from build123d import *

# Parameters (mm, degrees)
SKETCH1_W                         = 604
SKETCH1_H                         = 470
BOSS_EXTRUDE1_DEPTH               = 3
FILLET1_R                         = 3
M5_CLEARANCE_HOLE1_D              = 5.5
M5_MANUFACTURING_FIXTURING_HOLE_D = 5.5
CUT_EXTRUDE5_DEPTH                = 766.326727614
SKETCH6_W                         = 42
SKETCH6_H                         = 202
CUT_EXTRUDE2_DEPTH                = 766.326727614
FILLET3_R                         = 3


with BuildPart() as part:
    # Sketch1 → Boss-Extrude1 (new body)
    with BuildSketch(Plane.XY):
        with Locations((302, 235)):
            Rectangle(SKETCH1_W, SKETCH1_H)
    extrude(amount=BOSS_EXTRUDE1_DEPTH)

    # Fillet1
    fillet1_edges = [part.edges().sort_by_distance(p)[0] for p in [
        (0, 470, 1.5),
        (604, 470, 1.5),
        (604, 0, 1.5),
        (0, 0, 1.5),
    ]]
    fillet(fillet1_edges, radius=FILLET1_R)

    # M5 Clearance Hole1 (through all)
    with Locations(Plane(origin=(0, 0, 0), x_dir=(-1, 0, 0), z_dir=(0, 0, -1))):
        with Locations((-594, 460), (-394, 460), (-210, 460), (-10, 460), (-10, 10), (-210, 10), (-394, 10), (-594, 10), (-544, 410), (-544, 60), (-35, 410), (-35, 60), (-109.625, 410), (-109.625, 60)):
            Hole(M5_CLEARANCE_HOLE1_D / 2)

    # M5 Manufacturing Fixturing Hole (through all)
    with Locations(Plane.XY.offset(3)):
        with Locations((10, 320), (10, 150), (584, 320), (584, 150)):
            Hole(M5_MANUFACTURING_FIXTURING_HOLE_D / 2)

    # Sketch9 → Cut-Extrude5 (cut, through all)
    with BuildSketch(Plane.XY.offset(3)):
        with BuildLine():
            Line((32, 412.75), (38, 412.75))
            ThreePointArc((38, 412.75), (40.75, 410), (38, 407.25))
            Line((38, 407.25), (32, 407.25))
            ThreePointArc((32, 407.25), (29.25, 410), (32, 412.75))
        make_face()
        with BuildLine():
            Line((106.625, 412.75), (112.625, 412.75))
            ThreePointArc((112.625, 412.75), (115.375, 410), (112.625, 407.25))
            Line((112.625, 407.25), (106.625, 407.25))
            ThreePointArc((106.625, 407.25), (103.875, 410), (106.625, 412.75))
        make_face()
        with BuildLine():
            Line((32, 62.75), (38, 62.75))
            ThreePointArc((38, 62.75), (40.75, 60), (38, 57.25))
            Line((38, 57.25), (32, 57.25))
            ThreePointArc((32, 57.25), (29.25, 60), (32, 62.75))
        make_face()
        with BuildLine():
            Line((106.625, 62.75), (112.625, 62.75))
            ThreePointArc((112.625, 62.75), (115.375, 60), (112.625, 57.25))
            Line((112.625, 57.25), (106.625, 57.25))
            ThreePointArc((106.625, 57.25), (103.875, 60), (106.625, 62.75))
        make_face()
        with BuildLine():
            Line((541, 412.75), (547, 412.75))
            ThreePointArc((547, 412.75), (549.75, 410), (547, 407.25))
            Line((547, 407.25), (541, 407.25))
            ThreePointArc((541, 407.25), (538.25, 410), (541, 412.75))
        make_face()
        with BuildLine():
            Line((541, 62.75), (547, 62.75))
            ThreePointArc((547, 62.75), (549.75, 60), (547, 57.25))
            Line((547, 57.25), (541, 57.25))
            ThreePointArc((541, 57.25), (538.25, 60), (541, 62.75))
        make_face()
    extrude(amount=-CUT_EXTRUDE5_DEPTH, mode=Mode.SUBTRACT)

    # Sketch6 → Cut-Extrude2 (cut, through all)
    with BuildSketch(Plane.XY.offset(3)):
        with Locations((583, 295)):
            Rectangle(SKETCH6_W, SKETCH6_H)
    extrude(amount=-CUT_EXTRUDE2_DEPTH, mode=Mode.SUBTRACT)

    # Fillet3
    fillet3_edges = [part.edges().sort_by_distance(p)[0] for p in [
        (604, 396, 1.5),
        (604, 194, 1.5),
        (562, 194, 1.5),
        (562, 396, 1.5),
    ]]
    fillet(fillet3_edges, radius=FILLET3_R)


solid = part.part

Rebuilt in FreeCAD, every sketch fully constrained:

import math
import FreeCAD as App
import Part
import Sketcher

V = App.Vector
Q = App.Units.Quantity


def edges_at(feature, points):
    """Names of the edges that pass closest to the given points."""
    edges = feature.Shape.Edges
    near = lambda p: min(range(len(edges)), key=lambda i: edges[i].distToShape(Part.Vertex(*p))[0])
    return sorted({f"Edge{near(p) + 1}" for p in points})


def add_polygon(sketch, points):
    """Adds a closed chain of lines whose ends are joined by coincident constraints."""
    first, n = sketch.GeometryCount, len(points)
    for a, b in zip(points, points[1:] + points[:1]):
        sketch.addGeometry(Part.LineSegment(App.Vector(*a, 0), App.Vector(*b, 0)), False)
    for i in range(n):
        sketch.addConstraint(Sketcher.Constraint("Coincident", first + i, 2, first + (i + 1) % n, 1))

doc = App.newDocument("Part")
body = doc.addObject("PartDesign::Body", "Body")

# Sketch on XY plane
sketch1 = body.newObject("Sketcher::SketchObject", "Sketch")
sketch1.AttachmentSupport = (doc.getObject("XY_Plane"), [""])
sketch1.MapMode = "FlatFace"
add_polygon(sketch1, [(0, 470), (0, 0), (604, 0), (604, 470)])  # lines 0-3
sketch1.addConstraint(Sketcher.Constraint("Vertical", 0))
sketch1.addConstraint(Sketcher.Constraint("Horizontal", 1))
sketch1.addConstraint(Sketcher.Constraint("Vertical", 2))
sketch1.addConstraint(Sketcher.Constraint("Horizontal", 3))
sketch1.addConstraint(Sketcher.Constraint("Coincident", 0, 2, -1, 1))
sketch1.addConstraint(Sketcher.Constraint("DistanceX", 1, 1, 1, 2, Q("604 mm")))
sketch1.addConstraint(Sketcher.Constraint("DistanceY", 0, 2, 0, 1, Q("470 mm")))
pad1 = body.newObject("PartDesign::Pad", "Pad")
pad1.Profile = sketch1
pad1.Length = 3
doc.recompute()

fillet = body.newObject("PartDesign::Fillet", "Fillet")
fillet.Base = (pad1, edges_at(pad1, [
    (0, 470, 1.5),
    (604, 470, 1.5),
    (604, 0, 1.5),
    (0, 0, 1.5),
]))
fillet.Radius = 3

# Sketch on XY plane
sketch2 = body.newObject("Sketcher::SketchObject", "Sketch001")
sketch2.AttachmentSupport = (doc.getObject("XY_Plane"), [""])
sketch2.MapMode = "FlatFace"
sketch2.addGeometry(Part.Circle(V(594, 460, 0), V(0, 0, 1), 2.8), False)
sketch2.addGeometry(Part.Circle(V(394, 460, 0), V(0, 0, 1), 2.8), False)
sketch2.addGeometry(Part.Circle(V(210, 460, 0), V(0, 0, 1), 2.8), False)
sketch2.addGeometry(Part.Circle(V(10, 460, 0), V(0, 0, 1), 2.8), False)
sketch2.addGeometry(Part.Circle(V(10, 10, 0), V(0, 0, 1), 2.8), False)
sketch2.addGeometry(Part.Circle(V(210, 10, 0), V(0, 0, 1), 2.8), False)
sketch2.addGeometry(Part.Circle(V(394, 10, 0), V(0, 0, 1), 2.8), False)
sketch2.addGeometry(Part.Circle(V(594, 10, 0), V(0, 0, 1), 2.8), False)
sketch2.addGeometry(Part.Circle(V(544, 410, 0), V(0, 0, 1), 2.8), False)
sketch2.addGeometry(Part.Circle(V(544, 60, 0), V(0, 0, 1), 2.8), False)
sketch2.addGeometry(Part.Circle(V(35, 410, 0), V(0, 0, 1), 2.8), False)
sketch2.addGeometry(Part.Circle(V(35, 60, 0), V(0, 0, 1), 2.8), False)
sketch2.addGeometry(Part.Circle(V(109.6, 410, 0), V(0, 0, 1), 2.8), False)
sketch2.addGeometry(Part.Circle(V(109.6, 60, 0), V(0, 0, 1), 2.8), False)
sketch2.addConstraint(Sketcher.Constraint("Equal", 0, 1))
sketch2.addConstraint(Sketcher.Constraint("Equal", 1, 2))
sketch2.addConstraint(Sketcher.Constraint("Equal", 2, 3))
sketch2.addConstraint(Sketcher.Constraint("Equal", 3, 4))
sketch2.addConstraint(Sketcher.Constraint("Equal", 4, 5))
sketch2.addConstraint(Sketcher.Constraint("Equal", 5, 6))
sketch2.addConstraint(Sketcher.Constraint("Equal", 6, 7))
sketch2.addConstraint(Sketcher.Constraint("Equal", 7, 8))
sketch2.addConstraint(Sketcher.Constraint("Equal", 8, 9))
sketch2.addConstraint(Sketcher.Constraint("Equal", 9, 10))
sketch2.addConstraint(Sketcher.Constraint("Equal", 10, 11))
sketch2.addConstraint(Sketcher.Constraint("Equal", 11, 12))
sketch2.addConstraint(Sketcher.Constraint("Equal", 12, 13))
sketch2.addConstraint(Sketcher.Constraint("Horizontal", 0, 3, 1, 3))
sketch2.addConstraint(Sketcher.Constraint("Horizontal", 1, 3, 2, 3))
sketch2.addConstraint(Sketcher.Constraint("Horizontal", 2, 3, 3, 3))
sketch2.addConstraint(Sketcher.Constraint("Horizontal", 4, 3, 5, 3))
sketch2.addConstraint(Sketcher.Constraint("Horizontal", 5, 3, 6, 3))
sketch2.addConstraint(Sketcher.Constraint("Horizontal", 6, 3, 7, 3))
sketch2.addConstraint(Sketcher.Constraint("Horizontal", 8, 3, 10, 3))
sketch2.addConstraint(Sketcher.Constraint("Horizontal", 9, 3, 11, 3))
sketch2.addConstraint(Sketcher.Constraint("Horizontal", 10, 3, 12, 3))
sketch2.addConstraint(Sketcher.Constraint("Horizontal", 11, 3, 13, 3))
sketch2.addConstraint(Sketcher.Constraint("Vertical", 3, 3, 4, 3))
sketch2.addConstraint(Sketcher.Constraint("Vertical", 2, 3, 5, 3))
sketch2.addConstraint(Sketcher.Constraint("Vertical", 1, 3, 6, 3))
sketch2.addConstraint(Sketcher.Constraint("Vertical", 0, 3, 7, 3))
sketch2.addConstraint(Sketcher.Constraint("Vertical", 8, 3, 9, 3))
sketch2.addConstraint(Sketcher.Constraint("Vertical", 10, 3, 11, 3))
sketch2.addConstraint(Sketcher.Constraint("Vertical", 12, 3, 13, 3))
sketch2.addConstraint(Sketcher.Constraint("Diameter", 0, Q("5.5 mm")))
sketch2.addConstraint(Sketcher.Constraint("DistanceX", -1, 1, 0, 3, Q("594 mm")))
sketch2.addConstraint(Sketcher.Constraint("DistanceY", -1, 1, 0, 3, Q("460 mm")))
sketch2.addConstraint(Sketcher.Constraint("DistanceX", -1, 1, 1, 3, Q("394 mm")))
sketch2.addConstraint(Sketcher.Constraint("DistanceX", -1, 1, 2, 3, Q("210 mm")))
sketch2.addConstraint(Sketcher.Constraint("DistanceX", -1, 1, 3, 3, Q("10 mm")))
sketch2.addConstraint(Sketcher.Constraint("DistanceY", -1, 1, 4, 3, Q("10 mm")))
sketch2.addConstraint(Sketcher.Constraint("DistanceX", -1, 1, 8, 3, Q("544 mm")))
sketch2.addConstraint(Sketcher.Constraint("DistanceY", -1, 1, 8, 3, Q("410 mm")))
sketch2.addConstraint(Sketcher.Constraint("DistanceY", -1, 1, 9, 3, Q("60 mm")))
sketch2.addConstraint(Sketcher.Constraint("DistanceX", -1, 1, 10, 3, Q("35 mm")))
sketch2.addConstraint(Sketcher.Constraint("DistanceX", -1, 1, 12, 3, Q("109.625 mm")))
doc.recompute()
hole = body.newObject("PartDesign::Hole", "Hole")
hole.Profile = sketch2
hole.ThreadType = "None"
hole.Diameter = 5.5
hole.DepthType = "ThroughAll"
hole.Reversed = True

# Sketch on XY plane
sketch3 = body.newObject("Sketcher::SketchObject", "Sketch002")
sketch3.AttachmentSupport = (doc.getObject("XY_Plane"), [""])
sketch3.MapMode = "FlatFace"
sketch3.AttachmentOffset = App.Placement(V(0, 0, 3), App.Rotation())
sketch3.addGeometry(Part.Circle(V(10, 320, 0), V(0, 0, 1), 2.8), False)
sketch3.addGeometry(Part.Circle(V(10, 150, 0), V(0, 0, 1), 2.8), False)
sketch3.addGeometry(Part.Circle(V(584, 320, 0), V(0, 0, 1), 2.8), False)
sketch3.addGeometry(Part.Circle(V(584, 150, 0), V(0, 0, 1), 2.8), False)
sketch3.addConstraint(Sketcher.Constraint("Equal", 0, 1))
sketch3.addConstraint(Sketcher.Constraint("Equal", 1, 2))
sketch3.addConstraint(Sketcher.Constraint("Equal", 2, 3))
sketch3.addConstraint(Sketcher.Constraint("Horizontal", 0, 3, 2, 3))
sketch3.addConstraint(Sketcher.Constraint("Horizontal", 1, 3, 3, 3))
sketch3.addConstraint(Sketcher.Constraint("Vertical", 0, 3, 1, 3))
sketch3.addConstraint(Sketcher.Constraint("Vertical", 2, 3, 3, 3))
sketch3.addConstraint(Sketcher.Constraint("Diameter", 0, Q("5.5 mm")))
sketch3.addConstraint(Sketcher.Constraint("DistanceX", -1, 1, 0, 3, Q("10 mm")))
sketch3.addConstraint(Sketcher.Constraint("DistanceY", -1, 1, 0, 3, Q("320 mm")))
sketch3.addConstraint(Sketcher.Constraint("DistanceY", -1, 1, 1, 3, Q("150 mm")))
sketch3.addConstraint(Sketcher.Constraint("DistanceX", -1, 1, 2, 3, Q("584 mm")))
doc.recompute()
hole2 = body.newObject("PartDesign::Hole", "Hole001")
hole2.Profile = sketch3
hole2.ThreadType = "None"
hole2.Diameter = 5.5
hole2.DepthType = "ThroughAll"

# Sketch on XY plane
sketch4 = body.newObject("Sketcher::SketchObject", "Sketch003")
sketch4.AttachmentSupport = (doc.getObject("XY_Plane"), [""])
sketch4.MapMode = "FlatFace"
sketch4.AttachmentOffset = App.Placement(V(0, 0, 3), App.Rotation())
sketch4.addGeometry(Part.LineSegment(V(38, 412.8, 0), V(32, 412.8, 0)), False)
sketch4.addGeometry(Part.ArcOfCircle(Part.Circle(V(32, 410, 0), V(0, 0, 1), 2.8), math.radians(90), math.radians(270)), False)
sketch4.addGeometry(Part.LineSegment(V(32, 407.2, 0), V(38, 407.2, 0)), False)
sketch4.addGeometry(Part.ArcOfCircle(Part.Circle(V(38, 410, 0), V(0, 0, 1), 2.8), math.radians(-90), math.radians(90)), False)
sketch4.addGeometry(Part.LineSegment(V(112.6, 412.8, 0), V(106.6, 412.8, 0)), False)
sketch4.addGeometry(Part.ArcOfCircle(Part.Circle(V(106.6, 410, 0), V(0, 0, 1), 2.8), math.radians(90), math.radians(270)), False)
sketch4.addGeometry(Part.LineSegment(V(106.6, 407.2, 0), V(112.6, 407.2, 0)), False)
sketch4.addGeometry(Part.ArcOfCircle(Part.Circle(V(112.6, 410, 0), V(0, 0, 1), 2.8), math.radians(-90), math.radians(90)), False)
sketch4.addGeometry(Part.LineSegment(V(38, 62.8, 0), V(32, 62.8, 0)), False)
sketch4.addGeometry(Part.ArcOfCircle(Part.Circle(V(32, 60, 0), V(0, 0, 1), 2.8), math.radians(90), math.radians(270)), False)
sketch4.addGeometry(Part.LineSegment(V(32, 57.2, 0), V(38, 57.2, 0)), False)
sketch4.addGeometry(Part.ArcOfCircle(Part.Circle(V(38, 60, 0), V(0, 0, 1), 2.8), math.radians(-90), math.radians(90)), False)
sketch4.addGeometry(Part.LineSegment(V(112.6, 62.8, 0), V(106.6, 62.8, 0)), False)
sketch4.addGeometry(Part.ArcOfCircle(Part.Circle(V(106.6, 60, 0), V(0, 0, 1), 2.8), math.radians(90), math.radians(270)), False)
sketch4.addGeometry(Part.LineSegment(V(106.6, 57.2, 0), V(112.6, 57.2, 0)), False)
sketch4.addGeometry(Part.ArcOfCircle(Part.Circle(V(112.6, 60, 0), V(0, 0, 1), 2.8), math.radians(-90), math.radians(90)), False)
sketch4.addGeometry(Part.LineSegment(V(547, 412.8, 0), V(541, 412.8, 0)), False)
sketch4.addGeometry(Part.ArcOfCircle(Part.Circle(V(541, 410, 0), V(0, 0, 1), 2.8), math.radians(90), math.radians(270)), False)
sketch4.addGeometry(Part.LineSegment(V(541, 407.2, 0), V(547, 407.2, 0)), False)
sketch4.addGeometry(Part.ArcOfCircle(Part.Circle(V(547, 410, 0), V(0, 0, 1), 2.8), math.radians(-90), math.radians(90)), False)
sketch4.addGeometry(Part.LineSegment(V(547, 62.8, 0), V(541, 62.8, 0)), False)
sketch4.addGeometry(Part.ArcOfCircle(Part.Circle(V(541, 60, 0), V(0, 0, 1), 2.8), math.radians(90), math.radians(270)), False)
sketch4.addGeometry(Part.LineSegment(V(541, 57.2, 0), V(547, 57.2, 0)), False)
sketch4.addGeometry(Part.ArcOfCircle(Part.Circle(V(547, 60, 0), V(0, 0, 1), 2.8), math.radians(-90), math.radians(90)), False)
sketch4.addConstraint(Sketcher.Constraint("Tangent", 0, 2, 1, 1))
sketch4.addConstraint(Sketcher.Constraint("Tangent", 1, 2, 2, 1))
sketch4.addConstraint(Sketcher.Constraint("Tangent", 2, 2, 3, 1))
sketch4.addConstraint(Sketcher.Constraint("Tangent", 3, 2, 0, 1))
sketch4.addConstraint(Sketcher.Constraint("Tangent", 4, 2, 5, 1))
sketch4.addConstraint(Sketcher.Constraint("Tangent", 5, 2, 6, 1))
sketch4.addConstraint(Sketcher.Constraint("Tangent", 6, 2, 7, 1))
sketch4.addConstraint(Sketcher.Constraint("Tangent", 7, 2, 4, 1))
sketch4.addConstraint(Sketcher.Constraint("Tangent", 8, 2, 9, 1))
sketch4.addConstraint(Sketcher.Constraint("Tangent", 9, 2, 10, 1))
sketch4.addConstraint(Sketcher.Constraint("Tangent", 10, 2, 11, 1))
sketch4.addConstraint(Sketcher.Constraint("Tangent", 11, 2, 8, 1))
sketch4.addConstraint(Sketcher.Constraint("Tangent", 12, 2, 13, 1))
sketch4.addConstraint(Sketcher.Constraint("Tangent", 13, 2, 14, 1))
sketch4.addConstraint(Sketcher.Constraint("Tangent", 14, 2, 15, 1))
sketch4.addConstraint(Sketcher.Constraint("Tangent", 15, 2, 12, 1))
sketch4.addConstraint(Sketcher.Constraint("Tangent", 16, 2, 17, 1))
sketch4.addConstraint(Sketcher.Constraint("Tangent", 17, 2, 18, 1))
sketch4.addConstraint(Sketcher.Constraint("Tangent", 18, 2, 19, 1))
sketch4.addConstraint(Sketcher.Constraint("Tangent", 19, 2, 16, 1))
sketch4.addConstraint(Sketcher.Constraint("Tangent", 20, 2, 21, 1))
sketch4.addConstraint(Sketcher.Constraint("Tangent", 21, 2, 22, 1))
sketch4.addConstraint(Sketcher.Constraint("Tangent", 22, 2, 23, 1))
sketch4.addConstraint(Sketcher.Constraint("Tangent", 23, 2, 20, 1))
sketch4.addConstraint(Sketcher.Constraint("Horizontal", 0))
sketch4.addConstraint(Sketcher.Constraint("Horizontal", 2))
sketch4.addConstraint(Sketcher.Constraint("Horizontal", 4))
sketch4.addConstraint(Sketcher.Constraint("Horizontal", 6))
sketch4.addConstraint(Sketcher.Constraint("Horizontal", 8))
sketch4.addConstraint(Sketcher.Constraint("Horizontal", 10))
sketch4.addConstraint(Sketcher.Constraint("Horizontal", 12))
sketch4.addConstraint(Sketcher.Constraint("Horizontal", 14))
sketch4.addConstraint(Sketcher.Constraint("Horizontal", 16))
sketch4.addConstraint(Sketcher.Constraint("Horizontal", 18))
sketch4.addConstraint(Sketcher.Constraint("Horizontal", 20))
sketch4.addConstraint(Sketcher.Constraint("Horizontal", 22))
sketch4.addConstraint(Sketcher.Constraint("Equal", 3, 5))
sketch4.addConstraint(Sketcher.Constraint("Equal", 7, 9))
sketch4.addConstraint(Sketcher.Constraint("Equal", 11, 13))
sketch4.addConstraint(Sketcher.Constraint("Equal", 15, 17))
sketch4.addConstraint(Sketcher.Constraint("Equal", 19, 21))
sketch4.addConstraint(Sketcher.Constraint("Horizontal", 3, 3, 5, 3))
sketch4.addConstraint(Sketcher.Constraint("Horizontal", 11, 3, 13, 3))
sketch4.addConstraint(Sketcher.Constraint("Horizontal", 7, 3, 17, 3))
sketch4.addConstraint(Sketcher.Constraint("Horizontal", 15, 3, 21, 3))
sketch4.addConstraint(Sketcher.Constraint("Vertical", 1, 3, 9, 3))
sketch4.addConstraint(Sketcher.Constraint("Vertical", 3, 3, 11, 3))
sketch4.addConstraint(Sketcher.Constraint("Vertical", 5, 3, 13, 3))
sketch4.addConstraint(Sketcher.Constraint("Vertical", 7, 3, 15, 3))
sketch4.addConstraint(Sketcher.Constraint("Vertical", 17, 3, 21, 3))
sketch4.addConstraint(Sketcher.Constraint("Vertical", 19, 3, 23, 3))
sketch4.addConstraint(Sketcher.Constraint("Equal", 2, 4))
sketch4.addConstraint(Sketcher.Constraint("Equal", 14, 16))
sketch4.addConstraint(Sketcher.Constraint("DistanceX", 0, 2, 0, 1, Q("6 mm")))
sketch4.addConstraint(Sketcher.Constraint("Radius", 1, Q("2.75 mm")))
sketch4.addConstraint(Sketcher.Constraint("DistanceX", -1, 1, 1, 3, Q("32 mm")))
sketch4.addConstraint(Sketcher.Constraint("DistanceY", -1, 1, 1, 3, Q("410 mm")))
sketch4.addConstraint(Sketcher.Constraint("DistanceY", -1, 1, 9, 3, Q("60 mm")))
sketch4.addConstraint(Sketcher.Constraint("DistanceX", -1, 1, 17, 3, Q("541 mm")))
sketch4.addConstraint(Sketcher.Constraint("DistanceX", -1, 1, 5, 3, Q("106.625 mm")))
pocket1 = body.newObject("PartDesign::Pocket", "Pocket")
pocket1.Profile = sketch4
pocket1.Type = "ThroughAll"

# Sketch on XY plane
sketch5 = body.newObject("Sketcher::SketchObject", "Sketch004")
sketch5.AttachmentSupport = (doc.getObject("XY_Plane"), [""])
sketch5.MapMode = "FlatFace"
sketch5.AttachmentOffset = App.Placement(V(0, 0, 3), App.Rotation())
add_polygon(sketch5, [(562, 396), (562, 194), (604, 194), (604, 396)])  # lines 0-3
sketch5.addConstraint(Sketcher.Constraint("Vertical", 0))
sketch5.addConstraint(Sketcher.Constraint("Horizontal", 1))
sketch5.addConstraint(Sketcher.Constraint("Vertical", 2))
sketch5.addConstraint(Sketcher.Constraint("Horizontal", 3))
sketch5.addConstraint(Sketcher.Constraint("DistanceX", 1, 1, 1, 2, Q("42 mm")))
sketch5.addConstraint(Sketcher.Constraint("DistanceY", 0, 2, 0, 1, Q("202 mm")))
sketch5.addConstraint(Sketcher.Constraint("DistanceX", -1, 1, 0, 2, Q("562 mm")))
sketch5.addConstraint(Sketcher.Constraint("DistanceY", -1, 1, 0, 2, Q("194 mm")))
pocket2 = body.newObject("PartDesign::Pocket", "Pocket001")
pocket2.Profile = sketch5
pocket2.Type = "ThroughAll"
doc.recompute()

fillet2 = body.newObject("PartDesign::Fillet", "Fillet001")
fillet2.Base = (pocket2, edges_at(pocket2, [
    (604, 396, 1.5),
    (604, 194, 1.5),
    (562, 194, 1.5),
    (562, 396, 1.5),
]))
fillet2.Radius = 3

doc.recompute()
